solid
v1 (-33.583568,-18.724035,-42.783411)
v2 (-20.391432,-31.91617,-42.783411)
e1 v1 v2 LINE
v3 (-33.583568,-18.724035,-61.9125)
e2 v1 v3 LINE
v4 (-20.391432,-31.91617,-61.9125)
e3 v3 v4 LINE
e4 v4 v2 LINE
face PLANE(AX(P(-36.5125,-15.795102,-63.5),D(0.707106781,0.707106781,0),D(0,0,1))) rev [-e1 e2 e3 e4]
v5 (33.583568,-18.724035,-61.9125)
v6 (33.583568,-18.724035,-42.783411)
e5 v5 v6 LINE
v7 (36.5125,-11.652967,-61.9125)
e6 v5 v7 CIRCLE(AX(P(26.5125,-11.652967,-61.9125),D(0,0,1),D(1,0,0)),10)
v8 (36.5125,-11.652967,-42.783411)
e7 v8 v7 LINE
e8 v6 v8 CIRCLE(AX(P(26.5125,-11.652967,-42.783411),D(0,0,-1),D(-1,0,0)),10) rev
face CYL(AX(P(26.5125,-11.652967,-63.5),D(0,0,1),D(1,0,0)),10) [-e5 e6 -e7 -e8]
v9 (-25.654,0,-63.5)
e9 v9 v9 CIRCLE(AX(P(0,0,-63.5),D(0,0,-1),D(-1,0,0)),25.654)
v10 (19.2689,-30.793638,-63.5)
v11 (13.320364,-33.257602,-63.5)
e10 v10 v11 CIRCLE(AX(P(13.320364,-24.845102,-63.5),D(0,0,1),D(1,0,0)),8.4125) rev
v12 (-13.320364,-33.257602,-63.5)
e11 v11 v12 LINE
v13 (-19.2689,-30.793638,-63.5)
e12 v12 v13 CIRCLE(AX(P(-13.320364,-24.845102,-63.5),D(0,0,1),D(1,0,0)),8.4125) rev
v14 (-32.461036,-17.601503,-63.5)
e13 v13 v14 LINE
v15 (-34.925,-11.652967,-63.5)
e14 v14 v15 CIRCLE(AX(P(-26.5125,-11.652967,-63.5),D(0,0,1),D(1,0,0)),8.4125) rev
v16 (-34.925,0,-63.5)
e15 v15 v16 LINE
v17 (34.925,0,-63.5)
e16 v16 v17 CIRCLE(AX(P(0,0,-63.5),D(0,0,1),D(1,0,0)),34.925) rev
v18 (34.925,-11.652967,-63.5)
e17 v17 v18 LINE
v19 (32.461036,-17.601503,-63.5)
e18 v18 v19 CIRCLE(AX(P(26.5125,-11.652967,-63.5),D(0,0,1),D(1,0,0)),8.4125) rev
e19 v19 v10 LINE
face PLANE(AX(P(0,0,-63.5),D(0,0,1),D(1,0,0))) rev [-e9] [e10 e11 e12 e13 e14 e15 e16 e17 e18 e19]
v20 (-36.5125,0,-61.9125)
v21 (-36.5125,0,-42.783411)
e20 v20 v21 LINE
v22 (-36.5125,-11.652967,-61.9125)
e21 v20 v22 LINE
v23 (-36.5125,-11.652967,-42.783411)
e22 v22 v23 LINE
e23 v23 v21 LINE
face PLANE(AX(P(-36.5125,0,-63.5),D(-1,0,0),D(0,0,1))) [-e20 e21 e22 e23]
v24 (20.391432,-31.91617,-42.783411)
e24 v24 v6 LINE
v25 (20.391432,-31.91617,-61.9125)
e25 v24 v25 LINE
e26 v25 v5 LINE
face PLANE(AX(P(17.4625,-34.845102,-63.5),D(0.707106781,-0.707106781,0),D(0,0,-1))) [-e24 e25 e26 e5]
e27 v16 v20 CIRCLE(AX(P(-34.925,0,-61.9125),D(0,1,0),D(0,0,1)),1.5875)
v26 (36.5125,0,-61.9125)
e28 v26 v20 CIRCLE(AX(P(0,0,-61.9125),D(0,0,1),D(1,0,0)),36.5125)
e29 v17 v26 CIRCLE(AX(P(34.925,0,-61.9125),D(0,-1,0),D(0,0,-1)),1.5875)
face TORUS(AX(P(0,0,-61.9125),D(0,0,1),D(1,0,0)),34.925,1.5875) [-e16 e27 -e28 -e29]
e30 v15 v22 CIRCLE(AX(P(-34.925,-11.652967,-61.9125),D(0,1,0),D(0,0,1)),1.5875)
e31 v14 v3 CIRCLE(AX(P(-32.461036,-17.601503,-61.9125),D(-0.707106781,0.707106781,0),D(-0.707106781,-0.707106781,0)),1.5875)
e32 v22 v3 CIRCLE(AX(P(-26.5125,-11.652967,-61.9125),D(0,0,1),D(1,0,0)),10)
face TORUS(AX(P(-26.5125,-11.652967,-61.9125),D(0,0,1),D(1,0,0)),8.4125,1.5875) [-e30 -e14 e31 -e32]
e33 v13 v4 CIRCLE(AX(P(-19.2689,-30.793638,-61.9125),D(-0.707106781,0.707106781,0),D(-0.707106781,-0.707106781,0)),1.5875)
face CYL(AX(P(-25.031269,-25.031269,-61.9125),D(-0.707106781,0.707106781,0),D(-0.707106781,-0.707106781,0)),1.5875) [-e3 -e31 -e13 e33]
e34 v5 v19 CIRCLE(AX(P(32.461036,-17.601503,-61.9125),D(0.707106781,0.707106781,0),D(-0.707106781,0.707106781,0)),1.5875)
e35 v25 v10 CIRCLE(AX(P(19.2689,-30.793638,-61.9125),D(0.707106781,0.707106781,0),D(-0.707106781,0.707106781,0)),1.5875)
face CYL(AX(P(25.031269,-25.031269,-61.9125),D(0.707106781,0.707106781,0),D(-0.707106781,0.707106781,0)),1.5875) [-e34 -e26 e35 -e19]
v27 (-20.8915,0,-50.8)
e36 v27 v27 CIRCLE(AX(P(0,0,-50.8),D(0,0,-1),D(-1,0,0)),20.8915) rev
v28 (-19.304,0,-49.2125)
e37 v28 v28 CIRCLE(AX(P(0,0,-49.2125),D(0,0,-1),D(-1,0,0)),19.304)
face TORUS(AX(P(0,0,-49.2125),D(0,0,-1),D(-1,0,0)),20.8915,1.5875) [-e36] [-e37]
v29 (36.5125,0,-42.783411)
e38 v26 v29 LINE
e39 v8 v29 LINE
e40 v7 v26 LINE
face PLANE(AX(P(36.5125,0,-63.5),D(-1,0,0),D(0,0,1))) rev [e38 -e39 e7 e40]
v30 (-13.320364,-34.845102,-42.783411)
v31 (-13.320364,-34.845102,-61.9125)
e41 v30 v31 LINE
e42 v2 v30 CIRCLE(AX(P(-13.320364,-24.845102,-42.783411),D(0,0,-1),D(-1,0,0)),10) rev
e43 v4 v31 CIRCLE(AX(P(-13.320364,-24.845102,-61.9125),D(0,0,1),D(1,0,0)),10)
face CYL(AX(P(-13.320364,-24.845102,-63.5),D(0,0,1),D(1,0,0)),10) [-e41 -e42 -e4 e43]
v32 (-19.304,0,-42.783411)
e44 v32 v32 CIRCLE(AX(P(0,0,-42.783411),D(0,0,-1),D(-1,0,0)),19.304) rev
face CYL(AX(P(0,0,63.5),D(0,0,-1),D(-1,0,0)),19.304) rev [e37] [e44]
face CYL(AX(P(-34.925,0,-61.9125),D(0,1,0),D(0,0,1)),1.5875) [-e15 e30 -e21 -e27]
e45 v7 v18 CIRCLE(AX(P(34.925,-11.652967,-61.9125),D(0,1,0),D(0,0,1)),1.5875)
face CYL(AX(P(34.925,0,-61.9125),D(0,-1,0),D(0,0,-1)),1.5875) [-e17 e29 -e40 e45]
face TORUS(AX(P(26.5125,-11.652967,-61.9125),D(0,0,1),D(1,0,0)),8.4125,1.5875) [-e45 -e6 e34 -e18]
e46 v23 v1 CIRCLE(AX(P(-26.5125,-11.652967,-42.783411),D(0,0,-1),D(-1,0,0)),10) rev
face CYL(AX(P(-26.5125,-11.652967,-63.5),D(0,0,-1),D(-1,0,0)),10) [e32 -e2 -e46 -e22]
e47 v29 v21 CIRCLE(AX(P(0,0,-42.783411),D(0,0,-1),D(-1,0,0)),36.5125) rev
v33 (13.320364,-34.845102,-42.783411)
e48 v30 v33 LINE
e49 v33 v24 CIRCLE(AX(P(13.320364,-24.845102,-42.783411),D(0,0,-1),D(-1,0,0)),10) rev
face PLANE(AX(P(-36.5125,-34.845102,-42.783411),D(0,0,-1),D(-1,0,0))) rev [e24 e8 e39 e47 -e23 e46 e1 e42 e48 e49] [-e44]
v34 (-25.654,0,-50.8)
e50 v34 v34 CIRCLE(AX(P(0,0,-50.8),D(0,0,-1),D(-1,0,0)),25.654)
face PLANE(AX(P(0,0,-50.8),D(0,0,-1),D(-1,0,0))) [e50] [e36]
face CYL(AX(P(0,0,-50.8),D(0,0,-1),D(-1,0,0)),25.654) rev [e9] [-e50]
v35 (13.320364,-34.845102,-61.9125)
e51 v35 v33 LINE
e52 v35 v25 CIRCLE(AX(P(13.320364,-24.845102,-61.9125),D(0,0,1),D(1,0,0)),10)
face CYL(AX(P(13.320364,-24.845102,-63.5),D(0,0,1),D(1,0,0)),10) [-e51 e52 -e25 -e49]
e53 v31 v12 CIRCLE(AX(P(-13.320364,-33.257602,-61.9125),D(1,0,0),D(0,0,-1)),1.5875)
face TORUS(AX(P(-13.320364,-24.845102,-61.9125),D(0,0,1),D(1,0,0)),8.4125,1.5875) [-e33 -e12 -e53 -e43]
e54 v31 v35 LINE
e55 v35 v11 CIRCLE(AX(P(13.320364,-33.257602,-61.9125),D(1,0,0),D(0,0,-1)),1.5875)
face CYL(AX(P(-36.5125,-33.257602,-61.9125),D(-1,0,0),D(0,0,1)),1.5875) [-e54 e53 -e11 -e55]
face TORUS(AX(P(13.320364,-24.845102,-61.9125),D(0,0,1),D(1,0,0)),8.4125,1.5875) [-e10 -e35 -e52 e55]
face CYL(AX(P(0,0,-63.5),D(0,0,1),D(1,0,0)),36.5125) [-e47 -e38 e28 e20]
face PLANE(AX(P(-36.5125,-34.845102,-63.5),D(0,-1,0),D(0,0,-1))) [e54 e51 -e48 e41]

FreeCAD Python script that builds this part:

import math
import FreeCAD as App
import Part
import Sketcher
from FreeCAD import Vector
Q = App.Units.Quantity


def edges_at(feature, points):
    """Names of the edges that pass closest to the given points."""
    edges = feature.Shape.Edges
    near = lambda p: min(range(len(edges)), key=lambda i: edges[i].distToShape(Part.Vertex(*p))[0])
    return sorted({f"Edge{near(p) + 1}" for p in points})


def add_polygon(sketch, points):
    """Adds a closed chain of lines whose ends are joined by coincident constraints."""
    first, n = sketch.GeometryCount, len(points)
    for a, b in zip(points, points[1:] + points[:1]):
        sketch.addGeometry(Part.LineSegment(App.Vector(*a, 0), App.Vector(*b, 0)), False)
    for i in range(n):
        sketch.addConstraint(Sketcher.Constraint("Coincident", first + i, 2, first + (i + 1) % n, 1))

doc = App.newDocument("Part")
params = doc.addObject("Spreadsheet::Sheet", "Params")
for row, (alias, value) in enumerate([
    ("sketch1_radius", "1.4375 in"),
    ("pad1_length", "2.5 in"),
    ("pad1_length2", "2.5 in"),
    ("sketch2_diameter", "2.875 in"),
    ("pad2_length", "4 in"),
    ("sketch3_diameter", "1.52 in"),
    ("sketch4_diameter", "2.02 in"),
    ("pocket2_length", "0.5 in"),
    ("sketch5_diameter", "2.02 in"),
    ("pocket3_length", "0.5 in"),
    ("sketch6_diameter", "2.395 in"),
    ("pocket4_length", "78.834 mm"),
    ("chamfer_size", "0.75 in"),
    ("fillet_radius", "10 mm"),
    ("fillet2_radius", "0.0625 in"),
], start=1):
    params.set(f"A{row}", alias)
    params.set(f"B{row}", "=" + value)
    params.setAlias(f"B{row}", alias)

body = doc.addObject("PartDesign::Body", "Body")

sketch1 = doc.addObject("Sketcher::SketchObject", "Sketch")
body.addObject(sketch1)
sketch1.AttachmentSupport = (doc.XY_Plane, [""])
sketch1.MapMode = "FlatFace"
sketch1.addGeometry([
    Part.LineSegment(Vector(-36.5125, 0, 0), Vector(-36.5125, -34.845102, 0)),
    Part.LineSegment(Vector(-36.5125, -34.845102, 0), Vector(36.5125, -34.845102, 0)),
    Part.LineSegment(Vector(36.5125, -34.845102, 0), Vector(36.5125, 0, 0)),
    Part.ArcOfCircle(Part.Circle(Vector(0, 0, 0), Vector(0, 0, 1), 36.5125), math.radians(0), math.radians(180)),
], False)
sketch1.addConstraint([
    Sketcher.Constraint("Coincident", 0, 2, 1, 1),
    Sketcher.Constraint("Coincident", 1, 2, 2, 1),
    Sketcher.Constraint("Tangent", 2, 2, 3, 1),
    Sketcher.Constraint("Tangent", 3, 2, 0, 1),
    Sketcher.Constraint("Vertical", 0),
    Sketcher.Constraint("Horizontal", 1),
    Sketcher.Constraint("Vertical", 2),
    Sketcher.Constraint("Coincident", 3, 3, -1, 1),
    Sketcher.Constraint("Radius", 3, Q("1.4375 in")),
    Sketcher.Constraint("DistanceY", 0, 2, 0, 1, Q("34.845102 mm")),
])
sketch1.setExpression("Constraints[8]", "Params.sketch1_radius")
pad1 = doc.addObject("PartDesign::Pad", "Pad")
body.addObject(pad1)
pad1.Profile = sketch1
pad1.Type = "TwoLengths"
pad1.setExpression("Length", "Params.pad1_length")
pad1.setExpression("Length2", "Params.pad1_length2")

sketch2 = doc.addObject("Sketcher::SketchObject", "Sketch001")
body.addObject(sketch2)
sketch2.AttachmentSupport = (doc.XZ_Plane, [""])
sketch2.MapMode = "FlatFace"
sketch2.addGeometry(Part.Circle(Vector(0, 0, 0), Vector(0, 0, 1), 36.5125), False)
sketch2.addConstraint([
    Sketcher.Constraint("Coincident", 0, 3, -1, 1),
    Sketcher.Constraint("Diameter", 0, Q("2.875 in")),
])
sketch2.setExpression("Constraints[1]", "Params.sketch2_diameter")
pad2 = doc.addObject("PartDesign::Pad", "Pad001")
body.addObject(pad2)
pad2.Profile = sketch2
pad2.setExpression("Length", "Params.pad2_length")
pad2.Reversed = True

sketch3 = doc.addObject("Sketcher::SketchObject", "Sketch002")
body.addObject(sketch3)
sketch3.AttachmentSupport = (doc.XY_Plane, [""])
sketch3.MapMode = "FlatFace"
sketch3.AttachmentOffset = App.Placement(Vector(0, 0, -2.5 * 25.4), App.Rotation())
sketch3.addGeometry(Part.Circle(Vector(0, 0, 0), Vector(0, 0, 1), 19.304), False)
sketch3.addConstraint([
    Sketcher.Constraint("Coincident", 0, 3, -1, 1),
    Sketcher.Constraint("Diameter", 0, Q("1.52 in")),
])
sketch3.setExpression("Constraints[1]", "Params.sketch3_diameter")
pocket1 = doc.addObject("PartDesign::Pocket", "Pocket")
body.addObject(pocket1)
pocket1.Profile = sketch3
pocket1.Type = "ThroughAll"
pocket1.Reversed = True

sketch4 = doc.addObject("Sketcher::SketchObject", "Sketch003")
body.addObject(sketch4)
sketch4.AttachmentSupport = (doc.XY_Plane, [""])
sketch4.MapMode = "FlatFace"
sketch4.AttachmentOffset = App.Placement(Vector(0, 0, -2.5 * 25.4), App.Rotation())
sketch4.addGeometry(Part.Circle(Vector(0, 0, 0), Vector(0, 0, 1), 25.654), False)
sketch4.addConstraint([
    Sketcher.Constraint("Coincident", 0, 3, -1, 1),
    Sketcher.Constraint("Diameter", 0, Q("2.02 in")),
])
sketch4.setExpression("Constraints[1]", "Params.sketch4_diameter")
pocket2 = doc.addObject("PartDesign::Pocket", "Pocket001")
body.addObject(pocket2)
pocket2.Profile = sketch4
pocket2.setExpression("Length", "Params.pocket2_length")
pocket2.Reversed = True

sketch5 = doc.addObject("Sketcher::SketchObject", "Sketch004")
body.addObject(sketch5)
sketch5.AttachmentSupport = (doc.XY_Plane, [""])
sketch5.MapMode = "FlatFace"
sketch5.AttachmentOffset = App.Placement(Vector(0, 0, 2.5 * 25.4), App.Rotation())
sketch5.addGeometry(Part.Circle(Vector(0, 0, 0), Vector(0, 0, 1), 25.654), False)
sketch5.addConstraint([
    Sketcher.Constraint("Coincident", 0, 3, -1, 1),
    Sketcher.Constraint("Diameter", 0, Q("2.02 in")),
])
sketch5.setExpression("Constraints[1]", "Params.sketch5_diameter")
pocket3 = doc.addObject("PartDesign::Pocket", "Pocket002")
body.addObject(pocket3)
pocket3.Profile = sketch5
pocket3.setExpression("Length", "Params.pocket3_length")

sketch6 = doc.addObject("Sketcher::SketchObject", "Sketch005")
body.addObject(sketch6)
sketch6.AttachmentSupport = (doc.XZ_Plane, [""])
sketch6.MapMode = "FlatFace"
sketch6.AttachmentOffset = App.Placement(Vector(0, 0, -4 * 25.4), App.Rotation())
sketch6.addGeometry(Part.Circle(Vector(0, 0, 0), Vector(0, 0, 1), 30.4165), False)
sketch6.addConstraint([
    Sketcher.Constraint("Coincident", 0, 3, -1, 1),
    Sketcher.Constraint("Diameter", 0, Q("2.395 in")),
])
sketch6.setExpression("Constraints[1]", "Params.sketch6_diameter")
pocket4 = doc.addObject("PartDesign::Pocket", "Pocket003")
body.addObject(pocket4)
pocket4.Profile = sketch6
pocket4.setExpression("Length", "Params.pocket4_length")
pocket4.Reversed = True
doc.recompute()

chamfer = doc.addObject("PartDesign::Chamfer", "Chamfer")
body.addObject(chamfer)
chamfer.Base = (pocket4, edges_at(pocket4, [(-36.513, -34.845, 0), (36.513, -34.845, 0)]))
chamfer.setExpression("Size", "Params.chamfer_size")
doc.recompute()

fillet = doc.addObject("PartDesign::Fillet", "Fillet")
body.addObject(fillet)
fillet.Base = (chamfer, edges_at(chamfer, [
    (-17.462, -34.845, 0),
    (17.462, -34.845, 0),
    (36.513, -15.795, 0),
    (-36.513, -15.795, 0),
]))
fillet.setExpression("Radius", "Params.fillet_radius")
doc.recompute()

fillet2 = doc.addObject("PartDesign::Fillet", "Fillet001")
body.addObject(fillet2)
fillet2.Base = (fillet, edges_at(fillet, [
    (-36.513, -5.826, -63.5),
    (36.513, -5.826, 63.5),
    (0, 36.513, 63.5),
    (-36.513, -5.826, 63.5),
    (0, 36.513, -63.5),
    (-36.513, 101.6, 0),
    (19.304, 0, -50.8),
    (36.513, -5.826, -63.5),
    (19.304, 0, 50.8),
    (-30.416, 101.6, 0),
    (26.988, -25.32, -63.5),
    (0, -34.845, -63.5),
    (-26.988, -25.32, -63.5),
    (-35.751, -15.48, -63.5),
    (-17.147, -34.084, -63.5),
    (17.147, -34.084, -63.5),
    (35.751, -15.48, -63.5),
    (26.988, -25.32, 63.5),
    (0, -34.845, 63.5),
    (-26.988, -25.32, 63.5),
    (-35.751, -15.48, 63.5),
    (-17.147, -34.084, 63.5),
    (17.147, -34.084, 63.5),
    (35.751, -15.48, 63.5),
]))
fillet2.setExpression("Radius", "Params.fillet2_radius")

sketch7 = doc.addObject("Sketcher::SketchObject", "Sketch006")
body.addObject(sketch7)
sketch7.AttachmentSupport = (doc.YZ_Plane, [""])
sketch7.MapMode = "FlatFace"
add_polygon(sketch7, [(106.04947, 78.308159), (-34.845102, 78.308159), (-34.845102, -42.783411), (106.04947, -42.783411)])
sketch7.addConstraint([
    Sketcher.Constraint("Horizontal", 0),
    Sketcher.Constraint("Vertical", 1),
    Sketcher.Constraint("Horizontal", 2),
    Sketcher.Constraint("Vertical", 3),
    Sketcher.Constraint("DistanceY", 1, 2, 1, 1, Q("121.09157 mm")),
    Sketcher.Constraint("DistanceX", 0, 2, 0, 1, Q("140.894572 mm")),
    Sketcher.Constraint("DistanceY", -1, 1, 0, 2, Q("78.308159 mm")),
    Sketcher.Constraint("DistanceX", -1, 1, 2, 2, Q("106.04947 mm")),
])
pocket5 = doc.addObject("PartDesign::Pocket", "Pocket004")
body.addObject(pocket5)
pocket5.Profile = sketch7
pocket5.Type = "ThroughAll"
pocket5.Midplane = True

doc.recompute()
